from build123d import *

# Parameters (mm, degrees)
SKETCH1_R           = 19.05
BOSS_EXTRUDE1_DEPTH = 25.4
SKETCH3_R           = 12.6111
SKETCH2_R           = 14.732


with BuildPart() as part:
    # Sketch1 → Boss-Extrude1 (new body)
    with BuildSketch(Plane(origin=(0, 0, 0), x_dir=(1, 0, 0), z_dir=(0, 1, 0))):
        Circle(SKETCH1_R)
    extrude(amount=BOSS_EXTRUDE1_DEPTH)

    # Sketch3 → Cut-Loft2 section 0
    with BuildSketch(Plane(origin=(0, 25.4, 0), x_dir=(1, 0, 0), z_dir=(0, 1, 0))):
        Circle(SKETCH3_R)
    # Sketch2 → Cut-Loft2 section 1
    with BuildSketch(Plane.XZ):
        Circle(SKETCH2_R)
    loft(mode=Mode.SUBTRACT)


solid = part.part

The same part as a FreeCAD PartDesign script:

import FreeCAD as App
import Part
import Sketcher

V = App.Vector
Q = App.Units.Quantity

doc = App.newDocument("Part")
body = doc.addObject("PartDesign::Body", "Body")

# Sketch on XZ plane
sketch1 = body.newObject("Sketcher::SketchObject", "Sketch")
sketch1.AttachmentSupport = (doc.getObject("XZ_Plane"), [""])
sketch1.MapMode = "FlatFace"
sketch1.addGeometry(Part.Circle(V(0, 0, 0), V(0, 0, 1), 19.05), False)
sketch1.addConstraint(Sketcher.Constraint("Coincident", 0, 3, -1, 1))
sketch1.addConstraint(Sketcher.Constraint("Diameter", 0, Q("1.5 in")))
pad1 = body.newObject("PartDesign::Pad", "Pad")
pad1.Profile = sketch1
pad1.Length = Q("1 in")
pad1.Reversed = True

# Sketch on XZ plane
sketch2 = body.newObject("Sketcher::SketchObject", "Sketch001")
sketch2.AttachmentSupport = (doc.getObject("XZ_Plane"), [""])
sketch2.MapMode = "FlatFace"
sketch2.AttachmentOffset = App.Placement(V(0, 0, -1 * 25.4), App.Rotation())
sketch2.addGeometry(Part.Circle(V(0, 0, 0), V(0, 0, 1), 12.6111), False)
sketch2.addConstraint(Sketcher.Constraint("Coincident", 0, 3, -1, 1))
sketch2.addConstraint(Sketcher.Constraint("Diameter", 0, Q("0.993 in")))

# Sketch on XZ plane
sketch3 = body.newObject("Sketcher::SketchObject", "Sketch002")
sketch3.AttachmentSupport = (doc.getObject("XZ_Plane"), [""])
sketch3.MapMode = "FlatFace"
sketch3.addGeometry(Part.Circle(V(0, 0, 0), V(0, 0, 1), 14.732), False)
sketch3.addConstraint(Sketcher.Constraint("Coincident", 0, 3, -1, 1))
sketch3.addConstraint(Sketcher.Constraint("Diameter", 0, Q("1.16 in")))

subtractiveloft = body.newObject("PartDesign::SubtractiveLoft", "SubtractiveLoft")
subtractiveloft.Profile = sketch2
subtractiveloft.Sections = [sketch3]

doc.recompute()
